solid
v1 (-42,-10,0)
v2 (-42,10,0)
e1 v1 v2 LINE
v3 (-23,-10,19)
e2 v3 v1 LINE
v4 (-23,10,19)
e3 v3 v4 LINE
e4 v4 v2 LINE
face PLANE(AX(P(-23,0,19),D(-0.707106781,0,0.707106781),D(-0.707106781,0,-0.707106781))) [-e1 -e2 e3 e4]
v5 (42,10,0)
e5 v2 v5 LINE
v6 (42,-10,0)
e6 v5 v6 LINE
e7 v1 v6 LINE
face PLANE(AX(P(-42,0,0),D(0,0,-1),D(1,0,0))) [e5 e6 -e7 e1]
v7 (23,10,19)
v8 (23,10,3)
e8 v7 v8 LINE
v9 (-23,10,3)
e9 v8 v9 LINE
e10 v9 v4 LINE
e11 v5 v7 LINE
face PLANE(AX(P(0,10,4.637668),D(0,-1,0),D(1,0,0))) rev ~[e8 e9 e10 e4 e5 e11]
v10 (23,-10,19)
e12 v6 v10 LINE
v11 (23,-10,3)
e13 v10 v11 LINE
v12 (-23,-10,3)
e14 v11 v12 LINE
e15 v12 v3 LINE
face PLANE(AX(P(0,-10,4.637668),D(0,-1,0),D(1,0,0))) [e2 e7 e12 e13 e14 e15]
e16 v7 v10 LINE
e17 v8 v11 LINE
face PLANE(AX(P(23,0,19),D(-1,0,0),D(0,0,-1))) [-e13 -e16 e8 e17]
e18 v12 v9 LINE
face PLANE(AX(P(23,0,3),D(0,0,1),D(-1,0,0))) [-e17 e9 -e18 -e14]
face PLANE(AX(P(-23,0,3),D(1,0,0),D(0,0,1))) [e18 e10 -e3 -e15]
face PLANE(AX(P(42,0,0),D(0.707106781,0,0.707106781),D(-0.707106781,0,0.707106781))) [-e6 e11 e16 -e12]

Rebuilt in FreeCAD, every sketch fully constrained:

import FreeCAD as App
import Part
import Sketcher

V = App.Vector

doc = App.newDocument("Part")
body = doc.addObject("PartDesign::Body", "Body")

sketch1 = body.newObject("Sketcher::SketchObject", "Sketch")
sketch1.AttachmentSupport = (doc.getObject("XZ_Plane"), [""])
sketch1.MapMode = "FlatFace"
sketch1.addGeometry([
    Part.LineSegment(V(-42, 0, 0), V(42, 0, 0)),
    Part.LineSegment(V(42, 0, 0), V(23, 19, 0)),
    Part.LineSegment(V(23, 19, 0), V(23, 3, 0)),
    Part.LineSegment(V(23, 3, 0), V(-23, 3, 0)),
    Part.LineSegment(V(-23, 3, 0), V(-23, 19, 0)),
    Part.LineSegment(V(-23, 19, 0), V(-42, 0, 0)),
], False)
sketch1.addConstraint([
    Sketcher.Constraint("Coincident", 0, 2, 1, 1),
    Sketcher.Constraint("Coincident", 1, 2, 2, 1),
    Sketcher.Constraint("Coincident", 2, 2, 3, 1),
    Sketcher.Constraint("Coincident", 3, 2, 4, 1),
    Sketcher.Constraint("Coincident", 4, 2, 5, 1),
    Sketcher.Constraint("Coincident", 5, 2, 0, 1),
    Sketcher.Constraint("Horizontal", 0),
    Sketcher.Constraint("Vertical", 2),
    Sketcher.Constraint("Horizontal", 3),
    Sketcher.Constraint("Vertical", 4),
    Sketcher.Constraint("Symmetric", 0, 2, 5, 2, -1, 1),
    Sketcher.Constraint("Symmetric", 1, 2, 4, 2, -2),
    Sketcher.Constraint("Perpendicular", 1, 5),
    Sketcher.Constraint("DistanceX", 0, 1, 0, 2, 84.0),
    Sketcher.Constraint("DistanceX", 3, 2, 3, 1, 46.0),
    Sketcher.Constraint("DistanceY", 2, 2, 2, 1, 16.0),
])
pad1 = body.newObject("PartDesign::Pad", "Pad")
pad1.Profile = sketch1
pad1.Length = 20
pad1.Midplane = True

doc.recompute()
